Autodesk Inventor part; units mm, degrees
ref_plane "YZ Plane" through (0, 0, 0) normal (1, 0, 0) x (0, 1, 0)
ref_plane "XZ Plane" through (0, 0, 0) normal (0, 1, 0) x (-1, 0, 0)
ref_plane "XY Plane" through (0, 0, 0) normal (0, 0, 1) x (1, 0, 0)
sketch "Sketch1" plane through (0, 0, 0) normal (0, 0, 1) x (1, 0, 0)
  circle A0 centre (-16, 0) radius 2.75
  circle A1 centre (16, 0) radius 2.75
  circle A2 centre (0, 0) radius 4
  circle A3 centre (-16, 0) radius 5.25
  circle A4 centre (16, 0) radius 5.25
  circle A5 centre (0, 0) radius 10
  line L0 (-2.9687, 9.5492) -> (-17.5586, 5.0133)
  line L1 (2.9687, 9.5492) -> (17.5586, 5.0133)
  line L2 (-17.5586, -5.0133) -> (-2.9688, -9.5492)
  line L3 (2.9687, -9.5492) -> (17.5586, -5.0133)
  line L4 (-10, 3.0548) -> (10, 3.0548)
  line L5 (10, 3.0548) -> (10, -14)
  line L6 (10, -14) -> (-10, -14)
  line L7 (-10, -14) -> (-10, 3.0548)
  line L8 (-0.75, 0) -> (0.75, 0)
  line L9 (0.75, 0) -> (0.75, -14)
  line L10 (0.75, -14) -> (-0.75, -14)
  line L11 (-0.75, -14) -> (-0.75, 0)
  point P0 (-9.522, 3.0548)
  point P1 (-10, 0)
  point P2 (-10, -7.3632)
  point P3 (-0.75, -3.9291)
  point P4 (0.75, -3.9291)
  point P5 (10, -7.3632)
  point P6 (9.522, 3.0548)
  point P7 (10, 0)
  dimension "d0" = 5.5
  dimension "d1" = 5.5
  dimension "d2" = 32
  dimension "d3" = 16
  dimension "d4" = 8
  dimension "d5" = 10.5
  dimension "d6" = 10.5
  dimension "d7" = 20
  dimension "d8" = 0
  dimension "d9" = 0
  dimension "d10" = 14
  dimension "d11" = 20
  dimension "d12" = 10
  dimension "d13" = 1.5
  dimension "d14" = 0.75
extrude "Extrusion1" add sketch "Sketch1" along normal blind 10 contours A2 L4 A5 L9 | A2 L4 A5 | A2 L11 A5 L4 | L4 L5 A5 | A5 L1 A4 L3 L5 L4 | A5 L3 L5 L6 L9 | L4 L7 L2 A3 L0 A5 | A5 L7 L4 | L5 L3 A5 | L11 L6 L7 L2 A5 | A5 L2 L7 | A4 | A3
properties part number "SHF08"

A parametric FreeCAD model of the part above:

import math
import FreeCAD as App
import Part
import Sketcher
from FreeCAD import Vector
Q = App.Units.Quantity

doc = App.newDocument("Part")
params = doc.addObject("Spreadsheet::Sheet", "Params")
for row, (alias, value) in enumerate([
    ("sketch1_radius", "10 mm"),
    ("sketch1_radius2", "4 mm"),
    ("sketch1_diameter", "5.5 mm"),
    ("sketch1_radius3", "5.25 mm"),
    ("pad1_length", "10 mm"),
], start=1):
    params.set(f"A{row}", alias)
    params.set(f"B{row}", "=" + value)
    params.setAlias(f"B{row}", alias)

body = doc.addObject("PartDesign::Body", "Body")

sketch1 = body.newObject("Sketcher::SketchObject", "Sketch")
sketch1.AttachmentSupport = (doc.getObject("XY_Plane"), [""])
sketch1.MapMode = "FlatFace"
sketch1.addGeometry(Part.LineSegment(Vector(0.8, -3.9, 0), Vector(0.8, -14, 0)), False)
sketch1.addGeometry(Part.LineSegment(Vector(0.8, -14, 0), Vector(10, -14, 0)), False)
sketch1.addGeometry(Part.LineSegment(Vector(10, -14, 0), Vector(10, -7.4, 0)), False)
sketch1.addGeometry(Part.LineSegment(Vector(10, -7.4, 0), Vector(17.6, -5, 0)), False)
sketch1.addGeometry(Part.ArcOfCircle(Part.Circle(Vector(16, 0, 0), Vector(0, 0, 1), 5.2), math.radians(-73), math.radians(73)), False)
sketch1.addGeometry(Part.LineSegment(Vector(17.6, 5, 0), Vector(3, 9.5, 0)), False)
sketch1.addGeometry(Part.ArcOfCircle(Part.Circle(Vector(0, 0, 0), Vector(0, 0, 1), 10), math.radians(73), math.radians(107)), False)
sketch1.addGeometry(Part.LineSegment(Vector(-3, 9.5, 0), Vector(-17.6, 5, 0)), False)
sketch1.addGeometry(Part.ArcOfCircle(Part.Circle(Vector(-16, 0, 0), Vector(0, 0, 1), 5.2), math.radians(107), math.radians(253)), False)
sketch1.addGeometry(Part.LineSegment(Vector(-17.6, -5, 0), Vector(-10, -7.4, 0)), False)
sketch1.addGeometry(Part.LineSegment(Vector(-10, -7.4, 0), Vector(-10, -14, 0)), False)
sketch1.addGeometry(Part.LineSegment(Vector(-10, -14, 0), Vector(-0.8, -14, 0)), False)
sketch1.addGeometry(Part.LineSegment(Vector(-0.8, -14, 0), Vector(-0.8, -3.9, 0)), False)
sketch1.addGeometry(Part.ArcOfCircle(Part.Circle(Vector(0, 0, 0), Vector(0, 0, 1), 4), math.radians(-79), math.radians(259)), False)
sketch1.addGeometry(Part.Circle(Vector(-16, 0, 0), Vector(0, 0, 1), 2.8), False)
sketch1.addGeometry(Part.Circle(Vector(16, 0, 0), Vector(0, 0, 1), 2.8), False)
sketch1.addConstraint(Sketcher.Constraint("Coincident", 0, 2, 1, 1))
sketch1.addConstraint(Sketcher.Constraint("Coincident", 1, 2, 2, 1))
sketch1.addConstraint(Sketcher.Constraint("Coincident", 2, 2, 3, 1))
sketch1.addConstraint(Sketcher.Constraint("Tangent", 3, 2, 4, 1))
sketch1.addConstraint(Sketcher.Constraint("Tangent", 4, 2, 5, 1))
sketch1.addConstraint(Sketcher.Constraint("Tangent", 5, 2, 6, 1))
sketch1.addConstraint(Sketcher.Constraint("Tangent", 6, 2, 7, 1))
sketch1.addConstraint(Sketcher.Constraint("Tangent", 7, 2, 8, 1))
sketch1.addConstraint(Sketcher.Constraint("Tangent", 8, 2, 9, 1))
sketch1.addConstraint(Sketcher.Constraint("Coincident", 9, 2, 10, 1))
sketch1.addConstraint(Sketcher.Constraint("Coincident", 10, 2, 11, 1))
sketch1.addConstraint(Sketcher.Constraint("Coincident", 11, 2, 12, 1))
sketch1.addConstraint(Sketcher.Constraint("Coincident", 12, 2, 13, 2))
sketch1.addConstraint(Sketcher.Constraint("Coincident", 13, 1, 0, 1))
sketch1.addConstraint(Sketcher.Constraint("Vertical", 0))
sketch1.addConstraint(Sketcher.Constraint("Horizontal", 1))
sketch1.addConstraint(Sketcher.Constraint("Vertical", 2))
sketch1.addConstraint(Sketcher.Constraint("Vertical", 10))
sketch1.addConstraint(Sketcher.Constraint("Horizontal", 11))
sketch1.addConstraint(Sketcher.Constraint("Vertical", 12))
sketch1.addConstraint(Sketcher.Constraint("Coincident", 6, 3, -1, 1))
sketch1.addConstraint(Sketcher.Constraint("Coincident", 13, 3, -1, 1))
sketch1.addConstraint(Sketcher.Constraint("Coincident", 14, 3, 8, 3))
sketch1.addConstraint(Sketcher.Constraint("Coincident", 15, 3, 4, 3))
sketch1.addConstraint(Sketcher.Constraint("Equal", 4, 8))
sketch1.addConstraint(Sketcher.Constraint("Equal", 14, 15))
sketch1.addConstraint(Sketcher.Constraint("Symmetric", 4, 3, 8, 3, -1, 1))
sketch1.addConstraint(Sketcher.Constraint("Symmetric", 3, 2, 8, 2, -2))
sketch1.addConstraint(Sketcher.Constraint("Symmetric", 1, 2, 10, 2, -2))
sketch1.addConstraint(Sketcher.Constraint("Parallel", 3, 7))
sketch1.addConstraint(Sketcher.Constraint("Horizontal", 12, 2, 13, 1))
sketch1.addConstraint(Sketcher.Constraint("Radius", 6, Q("10 mm")))
sketch1.addConstraint(Sketcher.Constraint("Radius", 13, Q("4 mm")))
sketch1.addConstraint(Sketcher.Constraint("Diameter", 14, Q("5.5 mm")))
sketch1.addConstraint(Sketcher.Constraint("Radius", 4, Q("5.25 mm")))
sketch1.addConstraint(Sketcher.Constraint("DistanceX", -1, 1, 4, 3, Q("16 mm")))
sketch1.addConstraint(Sketcher.Constraint("DistanceY", 0, 2, -1, 1, Q("14 mm")))
sketch1.addConstraint(Sketcher.Constraint("DistanceX", -1, 1, 1, 2, Q("10 mm")))
sketch1.addConstraint(Sketcher.Constraint("DistanceX", 11, 2, 0, 2, Q("1.5 mm")))
sketch1.setExpression("Constraints[31]", "Params.sketch1_radius")
sketch1.setExpression("Constraints[32]", "Params.sketch1_radius2")
sketch1.setExpression("Constraints[33]", "Params.sketch1_diameter")
sketch1.setExpression("Constraints[34]", "Params.sketch1_radius3")
pad1 = body.newObject("PartDesign::Pad", "Pad")
pad1.Profile = sketch1
pad1.setExpression("Length", "Params.pad1_length")

doc.recompute()
